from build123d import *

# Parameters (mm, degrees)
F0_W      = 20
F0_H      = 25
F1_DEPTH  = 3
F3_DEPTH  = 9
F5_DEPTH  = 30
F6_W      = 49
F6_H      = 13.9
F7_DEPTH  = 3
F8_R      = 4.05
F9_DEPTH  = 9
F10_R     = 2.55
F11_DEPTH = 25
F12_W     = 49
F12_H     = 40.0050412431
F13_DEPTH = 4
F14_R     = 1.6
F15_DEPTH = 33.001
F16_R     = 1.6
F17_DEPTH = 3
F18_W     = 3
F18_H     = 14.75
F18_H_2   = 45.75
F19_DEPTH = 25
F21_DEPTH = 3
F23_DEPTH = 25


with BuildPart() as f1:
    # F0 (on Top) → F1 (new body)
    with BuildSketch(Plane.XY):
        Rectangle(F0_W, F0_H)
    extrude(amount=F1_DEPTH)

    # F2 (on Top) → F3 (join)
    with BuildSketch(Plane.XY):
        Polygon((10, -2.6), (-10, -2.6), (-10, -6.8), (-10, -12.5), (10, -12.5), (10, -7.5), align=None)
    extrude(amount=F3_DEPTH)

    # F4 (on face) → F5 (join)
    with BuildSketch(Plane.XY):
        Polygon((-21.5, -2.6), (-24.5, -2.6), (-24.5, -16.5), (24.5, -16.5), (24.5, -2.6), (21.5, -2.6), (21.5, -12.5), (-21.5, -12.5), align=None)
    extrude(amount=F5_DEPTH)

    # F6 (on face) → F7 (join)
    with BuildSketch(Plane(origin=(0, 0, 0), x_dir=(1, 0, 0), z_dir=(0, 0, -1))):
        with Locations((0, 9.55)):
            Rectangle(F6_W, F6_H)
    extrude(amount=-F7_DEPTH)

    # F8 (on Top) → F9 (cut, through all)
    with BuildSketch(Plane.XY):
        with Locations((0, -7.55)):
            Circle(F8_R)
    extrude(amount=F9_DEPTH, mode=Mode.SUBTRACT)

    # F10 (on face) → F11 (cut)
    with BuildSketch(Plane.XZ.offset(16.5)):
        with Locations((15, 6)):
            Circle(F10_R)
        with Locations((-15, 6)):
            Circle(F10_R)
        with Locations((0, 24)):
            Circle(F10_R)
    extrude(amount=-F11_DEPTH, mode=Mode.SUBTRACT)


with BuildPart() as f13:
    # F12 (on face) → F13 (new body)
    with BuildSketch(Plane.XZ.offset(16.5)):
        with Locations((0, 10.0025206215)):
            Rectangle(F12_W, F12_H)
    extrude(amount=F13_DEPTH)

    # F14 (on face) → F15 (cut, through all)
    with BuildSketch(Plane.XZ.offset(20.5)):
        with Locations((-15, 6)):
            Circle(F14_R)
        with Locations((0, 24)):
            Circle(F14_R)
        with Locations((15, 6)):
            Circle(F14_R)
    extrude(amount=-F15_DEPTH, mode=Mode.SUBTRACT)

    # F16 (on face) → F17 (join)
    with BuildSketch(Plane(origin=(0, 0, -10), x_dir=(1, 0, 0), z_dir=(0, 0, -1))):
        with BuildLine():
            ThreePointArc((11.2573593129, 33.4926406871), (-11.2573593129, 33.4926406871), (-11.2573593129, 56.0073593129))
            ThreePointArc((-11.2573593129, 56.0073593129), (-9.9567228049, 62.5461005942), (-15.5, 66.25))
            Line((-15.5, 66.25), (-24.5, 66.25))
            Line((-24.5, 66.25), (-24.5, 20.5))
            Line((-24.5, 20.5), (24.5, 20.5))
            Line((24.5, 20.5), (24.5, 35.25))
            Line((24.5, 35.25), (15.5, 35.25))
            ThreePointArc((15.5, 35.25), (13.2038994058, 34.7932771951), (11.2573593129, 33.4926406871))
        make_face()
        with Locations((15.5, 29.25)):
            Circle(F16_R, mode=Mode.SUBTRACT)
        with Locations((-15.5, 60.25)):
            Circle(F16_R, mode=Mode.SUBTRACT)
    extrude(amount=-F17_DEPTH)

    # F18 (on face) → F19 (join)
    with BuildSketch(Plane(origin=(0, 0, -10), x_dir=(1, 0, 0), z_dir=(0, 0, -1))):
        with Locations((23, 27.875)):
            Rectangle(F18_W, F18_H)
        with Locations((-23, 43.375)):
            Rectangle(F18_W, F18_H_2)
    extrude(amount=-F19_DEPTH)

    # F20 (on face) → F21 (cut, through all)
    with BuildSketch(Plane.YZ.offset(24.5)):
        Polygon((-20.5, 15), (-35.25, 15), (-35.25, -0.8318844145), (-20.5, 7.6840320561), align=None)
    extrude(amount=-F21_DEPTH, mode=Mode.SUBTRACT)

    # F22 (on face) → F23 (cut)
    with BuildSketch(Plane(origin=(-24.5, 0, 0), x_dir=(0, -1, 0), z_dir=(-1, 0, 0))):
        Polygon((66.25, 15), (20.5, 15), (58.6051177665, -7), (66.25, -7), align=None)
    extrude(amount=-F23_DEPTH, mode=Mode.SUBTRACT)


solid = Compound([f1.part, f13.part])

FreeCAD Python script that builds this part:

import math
import FreeCAD as App
import Part
import Sketcher
Q = App.Units.Quantity

doc = App.newDocument("Part")
body = doc.addObject("PartDesign::Body", "Body")

# Sketch on XY plane
sketch1 = doc.addObject("Sketcher::SketchObject", "Sketch")
body.addObject(sketch1)
sketch1.AttachmentSupport = (doc.XY_Plane, [""])
sketch1.MapMode = "FlatFace"
sketch1.addGeometry([
    Part.LineSegment(App.Vector(-10, 12, 0), App.Vector(-10, -12, 0)),
    Part.LineSegment(App.Vector(-10, -12, 0), App.Vector(10, -12, 0)),
    Part.LineSegment(App.Vector(10, -12, 0), App.Vector(10, 12, 0)),
    Part.LineSegment(App.Vector(10, 12, 0), App.Vector(-10, 12, 0)),
], False)
sketch1.addConstraint([
    Sketcher.Constraint("Coincident", 0, 2, 1, 1),
    Sketcher.Constraint("Coincident", 1, 2, 2, 1),
    Sketcher.Constraint("Coincident", 2, 2, 3, 1),
    Sketcher.Constraint("Coincident", 3, 2, 0, 1),
    Sketcher.Constraint("Vertical", 0),
    Sketcher.Constraint("Horizontal", 1),
    Sketcher.Constraint("Vertical", 2),
    Sketcher.Constraint("Horizontal", 3),
    Sketcher.Constraint("Symmetric", 0, 2, 2, 2, -1, 1),
    Sketcher.Constraint("DistanceX", 1, 1, 1, 2, 20.0),
    Sketcher.Constraint("DistanceY", 0, 2, 0, 1, 25.0),
])
pad1 = doc.addObject("PartDesign::Pad", "Pad")
body.addObject(pad1)
pad1.Profile = sketch1
pad1.Length = 3

# Sketch on XY plane
sketch2 = doc.addObject("Sketcher::SketchObject", "Sketch001")
body.addObject(sketch2)
sketch2.AttachmentSupport = (doc.XY_Plane, [""])
sketch2.MapMode = "FlatFace"
sketch2.addGeometry([
    Part.LineSegment(App.Vector(10, -3, 0), App.Vector(-10, -3, 0)),
    Part.LineSegment(App.Vector(-10, -3, 0), App.Vector(-10, -12, 0)),
    Part.LineSegment(App.Vector(-10, -12, 0), App.Vector(10, -12, 0)),
    Part.LineSegment(App.Vector(10, -12, 0), App.Vector(10, -3, 0)),
], False)
sketch2.addConstraint([
    Sketcher.Constraint("Coincident", 0, 2, 1, 1),
    Sketcher.Constraint("Coincident", 1, 2, 2, 1),
    Sketcher.Constraint("Coincident", 2, 2, 3, 1),
    Sketcher.Constraint("Coincident", 3, 2, 0, 1),
    Sketcher.Constraint("Horizontal", 0),
    Sketcher.Constraint("Vertical", 1),
    Sketcher.Constraint("Horizontal", 2),
    Sketcher.Constraint("Vertical", 3),
    Sketcher.Constraint("DistanceX", 0, 2, 0, 1, 20.0),
    Sketcher.Constraint("DistanceY", 1, 2, 1, 1, 9.9),
    Sketcher.Constraint("DistanceX", 0, 2, -1, 1, 10.0),
    Sketcher.Constraint("DistanceY", 0, 2, -1, 1, 2.6),
])
pad2 = doc.addObject("PartDesign::Pad", "Pad001")
body.addObject(pad2)
pad2.Profile = sketch2
pad2.Length = 9

# Sketch on XY plane
sketch3 = doc.addObject("Sketcher::SketchObject", "Sketch002")
body.addObject(sketch3)
sketch3.AttachmentSupport = (doc.XY_Plane, [""])
sketch3.MapMode = "FlatFace"
sketch3.addGeometry([
    Part.LineSegment(App.Vector(-21.5, -2.6, 0), App.Vector(-24.5, -2.6, 0)),  # 0
    Part.LineSegment(App.Vector(-24.5, -2.6, 0), App.Vector(-24.5, -16.5, 0)),  # 1
    Part.LineSegment(App.Vector(-24.5, -16.5, 0), App.Vector(24.5, -16.5, 0)),  # 2
    Part.LineSegment(App.Vector(24.5, -16.5, 0), App.Vector(24.5, -2.6, 0)),  # 3
    Part.LineSegment(App.Vector(24.5, -2.6, 0), App.Vector(21.5, -2.6, 0)),  # 4
    Part.LineSegment(App.Vector(21.5, -2.6, 0), App.Vector(21.5, -12.5, 0)),  # 5
    Part.LineSegment(App.Vector(21.5, -12.5, 0), App.Vector(-21.5, -12.5, 0)),  # 6
    Part.LineSegment(App.Vector(-21.5, -12.5, 0), App.Vector(-21.5, -2.6, 0)),  # 7
], False)
sketch3.addConstraint([
    Sketcher.Constraint("Coincident", 0, 2, 1, 1),
    Sketcher.Constraint("Coincident", 1, 2, 2, 1),
    Sketcher.Constraint("Coincident", 2, 2, 3, 1),
    Sketcher.Constraint("Coincident", 3, 2, 4, 1),
    Sketcher.Constraint("Coincident", 4, 2, 5, 1),
    Sketcher.Constraint("Coincident", 5, 2, 6, 1),
    Sketcher.Constraint("Coincident", 6, 2, 7, 1),
    Sketcher.Constraint("Coincident", 7, 2, 0, 1),
    Sketcher.Constraint("Horizontal", 0),
    Sketcher.Constraint("Vertical", 1),
    Sketcher.Constraint("Horizontal", 2),
    Sketcher.Constraint("Vertical", 3),
    Sketcher.Constraint("Horizontal", 4),
    Sketcher.Constraint("Vertical", 5),
    Sketcher.Constraint("Horizontal", 6),
    Sketcher.Constraint("Vertical", 7),
    Sketcher.Constraint("Symmetric", 0, 2, 3, 2, -2),
    Sketcher.Constraint("Equal", 0, 4),
    Sketcher.Constraint("DistanceX", 0, 2, 0, 1, 3.0),
    Sketcher.Constraint("DistanceX", 2, 1, 2, 2, 49.0),
    Sketcher.Constraint("DistanceY", 1, 2, 1, 1, 13.9),
    Sketcher.Constraint("DistanceY", 5, 2, 5, 1, 9.9),
    Sketcher.Constraint("DistanceY", 0, 2, -1, 1, 2.6),
])
pad3 = doc.addObject("PartDesign::Pad", "Pad002")
body.addObject(pad3)
pad3.Profile = sketch3
pad3.Length = 30

# Sketch on XY plane
sketch4 = doc.addObject("Sketcher::SketchObject", "Sketch003")
body.addObject(sketch4)
sketch4.AttachmentSupport = (doc.XY_Plane, [""])
sketch4.MapMode = "FlatFace"
sketch4.addGeometry([
    Part.LineSegment(App.Vector(-24, -16, 0), App.Vector(-24, -3, 0)),
    Part.LineSegment(App.Vector(-24, -3, 0), App.Vector(24, -3, 0)),
    Part.LineSegment(App.Vector(24, -3, 0), App.Vector(24, -16, 0)),
    Part.LineSegment(App.Vector(24, -16, 0), App.Vector(-24, -16, 0)),
], False)
sketch4.addConstraint([
    Sketcher.Constraint("Coincident", 0, 2, 1, 1),
    Sketcher.Constraint("Coincident", 1, 2, 2, 1),
    Sketcher.Constraint("Coincident", 2, 2, 3, 1),
    Sketcher.Constraint("Coincident", 3, 2, 0, 1),
    Sketcher.Constraint("Vertical", 0),
    Sketcher.Constraint("Horizontal", 1),
    Sketcher.Constraint("Vertical", 2),
    Sketcher.Constraint("Horizontal", 3),
    Sketcher.Constraint("DistanceX", 1, 1, 1, 2, 49.0),
    Sketcher.Constraint("DistanceY", 0, 1, 0, 2, 13.9),
    Sketcher.Constraint("DistanceX", 0, 2, -1, 1, 24.5),
    Sketcher.Constraint("DistanceY", 0, 2, -1, 1, 2.6),
])
pad4 = doc.addObject("PartDesign::Pad", "Pad003")
body.addObject(pad4)
pad4.Profile = sketch4
pad4.Length = 3

# Sketch on XY plane
sketch5 = doc.addObject("Sketcher::SketchObject", "Sketch004")
body.addObject(sketch5)
sketch5.AttachmentSupport = (doc.XY_Plane, [""])
sketch5.MapMode = "FlatFace"
sketch5.addGeometry(Part.Circle(App.Vector(0, -7.5, 0), App.Vector(0, 0, 1), 4), False)
sketch5.addConstraint([
    Sketcher.Constraint("PointOnObject", 0, 3, -2),
    Sketcher.Constraint("Diameter", 0, 8.1),
    Sketcher.Constraint("DistanceY", 0, 3, -1, 1, 7.55),
])
pocket1 = doc.addObject("PartDesign::Pocket", "Pocket")
body.addObject(pocket1)
pocket1.Profile = sketch5
pocket1.Type = "ThroughAll"
pocket1.Reversed = True

# Sketch on XZ plane
sketch6 = doc.addObject("Sketcher::SketchObject", "Sketch005")
body.addObject(sketch6)
sketch6.AttachmentSupport = (doc.XZ_Plane, [""])
sketch6.MapMode = "FlatFace"
sketch6.AttachmentOffset = App.Placement(App.Vector(0, 0, 16.5), App.Rotation())
sketch6.addGeometry([
    Part.Circle(App.Vector(15, 6, 0), App.Vector(0, 0, 1), 2.5),
    Part.Circle(App.Vector(-15, 6, 0), App.Vector(0, 0, 1), 2.5),
    Part.Circle(App.Vector(0, 24, 0), App.Vector(0, 0, 1), 2.5),
], False)
sketch6.addConstraint([
    Sketcher.Constraint("Equal", 0, 1),
    Sketcher.Constraint("Equal", 1, 2),
    Sketcher.Constraint("Symmetric", 0, 3, 1, 3, -2),
    Sketcher.Constraint("PointOnObject", 2, 3, -2),
    Sketcher.Constraint("Diameter", 0, 5.1),
    Sketcher.Constraint("DistanceX", -1, 1, 0, 3, 15.0),
    Sketcher.Constraint("DistanceY", -1, 1, 0, 3, 6.0),
    Sketcher.Constraint("DistanceY", -1, 1, 2, 3, 24.0),
])
pocket2 = doc.addObject("PartDesign::Pocket", "Pocket001")
body.addObject(pocket2)
pocket2.Profile = sketch6
pocket2.Length = 25
body2 = doc.addObject("PartDesign::Body", "Body001")

# Sketch on XZ plane
sketch7 = doc.addObject("Sketcher::SketchObject", "Sketch006")
body2.addObject(sketch7)
sketch7.AttachmentSupport = (doc.getObject("XZ_Plane001"), [""])
sketch7.MapMode = "FlatFace"
sketch7.AttachmentOffset = App.Placement(App.Vector(0, 0, 16.5), App.Rotation())
sketch7.addGeometry([
    Part.LineSegment(App.Vector(-24, 30, 0), App.Vector(-24, -10, 0)),
    Part.LineSegment(App.Vector(-24, -10, 0), App.Vector(24, -10, 0)),
    Part.LineSegment(App.Vector(24, -10, 0), App.Vector(24, 30, 0)),
    Part.LineSegment(App.Vector(24, 30, 0), App.Vector(-24, 30, 0)),
], False)
sketch7.addConstraint([
    Sketcher.Constraint("Coincident", 0, 2, 1, 1),
    Sketcher.Constraint("Coincident", 1, 2, 2, 1),
    Sketcher.Constraint("Coincident", 2, 2, 3, 1),
    Sketcher.Constraint("Coincident", 3, 2, 0, 1),
    Sketcher.Constraint("Vertical", 0),
    Sketcher.Constraint("Horizontal", 1),
    Sketcher.Constraint("Vertical", 2),
    Sketcher.Constraint("Horizontal", 3),
    Sketcher.Constraint("DistanceX", 1, 1, 1, 2, 49.0),
    Sketcher.Constraint("DistanceY", 0, 2, -1, 1, 10.0),
    Sketcher.Constraint("DistanceX", 0, 2, -1, 1, 24.5),
    Sketcher.Constraint("DistanceY", 0, 2, 0, 1, 40.005041),
])
pad5 = doc.addObject("PartDesign::Pad", "Pad004")
body2.addObject(pad5)
pad5.Profile = sketch7
pad5.Length = 4

# Sketch on XZ plane
sketch8 = doc.addObject("Sketcher::SketchObject", "Sketch007")
body2.addObject(sketch8)
sketch8.AttachmentSupport = (doc.getObject("XZ_Plane001"), [""])
sketch8.MapMode = "FlatFace"
sketch8.AttachmentOffset = App.Placement(App.Vector(0, 0, 20.5), App.Rotation())
sketch8.addGeometry([
    Part.Circle(App.Vector(-15, 6, 0), App.Vector(0, 0, 1), 1.6),
    Part.Circle(App.Vector(0, 24, 0), App.Vector(0, 0, 1), 1.6),
    Part.Circle(App.Vector(15, 6, 0), App.Vector(0, 0, 1), 1.6),
], False)
sketch8.addConstraint([
    Sketcher.Constraint("Equal", 0, 1),
    Sketcher.Constraint("Equal", 1, 2),
    Sketcher.Constraint("Symmetric", 0, 3, 2, 3, -2),
    Sketcher.Constraint("PointOnObject", 1, 3, -2),
    Sketcher.Constraint("Diameter", 0, 3.2),
    Sketcher.Constraint("DistanceX", 0, 3, -1, 1, 15.0),
    Sketcher.Constraint("DistanceY", -1, 1, 0, 3, 6.0),
    Sketcher.Constraint("DistanceY", -1, 1, 1, 3, 24.0),
])
pocket3 = doc.addObject("PartDesign::Pocket", "Pocket002")
body2.addObject(pocket3)
pocket3.Profile = sketch8
pocket3.Type = "ThroughAll"

# Sketch on XY plane
sketch9 = doc.addObject("Sketcher::SketchObject", "Sketch008")
body2.addObject(sketch9)
sketch9.AttachmentSupport = (doc.getObject("XY_Plane001"), [""])
sketch9.MapMode = "FlatFace"
sketch9.AttachmentOffset = App.Placement(App.Vector(0, 0, -10), App.Rotation())
sketch9.addGeometry([
    Part.ArcOfCircle(Part.Circle(App.Vector(0, -44.8, 0), App.Vector(0, 0, 1), 15.9), math.radians(45), math.radians(225)),  # 0
    Part.ArcOfCircle(Part.Circle(App.Vector(-15.5, -60.2, 0), App.Vector(0, 0, 1), 6), math.radians(-90), math.radians(45)),  # 1
    Part.LineSegment(App.Vector(-15.5, -66.2, 0), App.Vector(-24.5, -66.2, 0)),  # 2
    Part.LineSegment(App.Vector(-24.5, -66.2, 0), App.Vector(-24.5, -20.5, 0)),  # 3
    Part.LineSegment(App.Vector(-24.5, -20.5, 0), App.Vector(24.5, -20.5, 0)),  # 4
    Part.LineSegment(App.Vector(24.5, -20.5, 0), App.Vector(24.5, -35.2, 0)),  # 5
    Part.LineSegment(App.Vector(24.5, -35.2, 0), App.Vector(15.5, -35.2, 0)),  # 6
    Part.ArcOfCircle(Part.Circle(App.Vector(15.5, -29.3, 0), App.Vector(0, 0, 1), 6), math.radians(-135), math.radians(-90)),  # 7
    Part.Circle(App.Vector(15.5, -29.2, 0), App.Vector(0, 0, 1), 1.6),  # 8
    Part.Circle(App.Vector(-15.5, -60.2, 0), App.Vector(0, 0, 1), 1.6),  # 9
], False)
sketch9.addConstraint([
    Sketcher.Constraint("Tangent", 0, 2, 1, 2),
    Sketcher.Constraint("Tangent", 1, 1, 2, 1),
    Sketcher.Constraint("Coincident", 2, 2, 3, 1),
    Sketcher.Constraint("Coincident", 3, 2, 4, 1),
    Sketcher.Constraint("Coincident", 4, 2, 5, 1),
    Sketcher.Constraint("Coincident", 5, 2, 6, 1),
    Sketcher.Constraint("Tangent", 6, 2, 7, 2),
    Sketcher.Constraint("Tangent", 7, 1, 0, 1),
    Sketcher.Constraint("Horizontal", 2),
    Sketcher.Constraint("Vertical", 3),
    Sketcher.Constraint("Horizontal", 4),
    Sketcher.Constraint("Vertical", 5),
    Sketcher.Constraint("Horizontal", 6),
    Sketcher.Constraint("Coincident", 8, 3, 7, 3),
    Sketcher.Constraint("Coincident", 9, 3, 1, 3),
    Sketcher.Constraint("Equal", 1, 7),
    Sketcher.Constraint("Equal", 8, 9),
    Sketcher.Constraint("PointOnObject", 0, 3, -2),
    Sketcher.Constraint("Equal", 2, 6),
    Sketcher.Constraint("Radius", 1, 6.0),
    Sketcher.Constraint("Diameter", 8, 3.2),
    Sketcher.Constraint("DistanceX", 2, 2, 2, 1, 9.0),
    Sketcher.Constraint("DistanceX", 4, 1, 4, 2, 49.0),
    Sketcher.Constraint("DistanceY", 1, 3, 7, 3, 31.0),
    Sketcher.Constraint("DistanceY", 3, 1, 3, 2, 45.75),
    Sketcher.Constraint("DistanceX", 1, 3, -1, 1, 15.5),
    Sketcher.Constraint("DistanceY", 3, 2, -1, 1, 20.5),
])
pad6 = doc.addObject("PartDesign::Pad", "Pad005")
body2.addObject(pad6)
pad6.Profile = sketch9
pad6.Length = 3

# Sketch on XY plane
sketch10 = doc.addObject("Sketcher::SketchObject", "Sketch009")
body2.addObject(sketch10)
sketch10.AttachmentSupport = (doc.getObject("XY_Plane001"), [""])
sketch10.MapMode = "FlatFace"
sketch10.AttachmentOffset = App.Placement(App.Vector(0, 0, -10), App.Rotation())
sketch10.addGeometry([
    Part.LineSegment(App.Vector(21.5, -35.2, 0), App.Vector(21.5, -20.5, 0)),  # 0
    Part.LineSegment(App.Vector(21.5, -20.5, 0), App.Vector(24.5, -20.5, 0)),  # 1
    Part.LineSegment(App.Vector(24.5, -20.5, 0), App.Vector(24.5, -35.2, 0)),  # 2
    Part.LineSegment(App.Vector(24.5, -35.2, 0), App.Vector(21.5, -35.2, 0)),  # 3
    Part.LineSegment(App.Vector(-24.5, -66.2, 0), App.Vector(-24.5, -20.5, 0)),  # 4
    Part.LineSegment(App.Vector(-24.5, -20.5, 0), App.Vector(-21.5, -20.5, 0)),  # 5
    Part.LineSegment(App.Vector(-21.5, -20.5, 0), App.Vector(-21.5, -66.2, 0)),  # 6
    Part.LineSegment(App.Vector(-21.5, -66.2, 0), App.Vector(-24.5, -66.2, 0)),  # 7
], False)
sketch10.addConstraint([
    Sketcher.Constraint("Coincident", 0, 2, 1, 1),
    Sketcher.Constraint("Coincident", 1, 2, 2, 1),
    Sketcher.Constraint("Coincident", 2, 2, 3, 1),
    Sketcher.Constraint("Coincident", 3, 2, 0, 1),
    Sketcher.Constraint("Coincident", 4, 2, 5, 1),
    Sketcher.Constraint("Coincident", 5, 2, 6, 1),
    Sketcher.Constraint("Coincident", 6, 2, 7, 1),
    Sketcher.Constraint("Coincident", 7, 2, 4, 1),
    Sketcher.Constraint("Vertical", 0),
    Sketcher.Constraint("Horizontal", 1),
    Sketcher.Constraint("Vertical", 2),
    Sketcher.Constraint("Horizontal", 3),
    Sketcher.Constraint("Vertical", 4),
    Sketcher.Constraint("Horizontal", 5),
    Sketcher.Constraint("Vertical", 6),
    Sketcher.Constraint("Horizontal", 7),
    Sketcher.Constraint("Symmetric", 1, 2, 4, 2, -2),
    Sketcher.Constraint("Equal", 3, 5),
    Sketcher.Constraint("DistanceX", 1, 1, 1, 2, 3.0),
    Sketcher.Constraint("DistanceX", 4, 2, 0, 2, 46.0),
    Sketcher.Constraint("DistanceY", 6, 2, 3, 2, 31.0),
    Sketcher.Constraint("DistanceY", 0, 1, 0, 2, 14.75),
    Sketcher.Constraint("DistanceY", 0, 2, -1, 1, 20.5),
])
pad7 = doc.addObject("PartDesign::Pad", "Pad006")
body2.addObject(pad7)
pad7.Profile = sketch10
pad7.Length = 25

# Sketch on YZ plane
sketch11 = doc.addObject("Sketcher::SketchObject", "Sketch010")
body2.addObject(sketch11)
sketch11.AttachmentSupport = (doc.getObject("YZ_Plane001"), [""])
sketch11.MapMode = "FlatFace"
sketch11.AttachmentOffset = App.Placement(App.Vector(0, 0, 24.5), App.Rotation())
sketch11.addGeometry([
    Part.LineSegment(App.Vector(-20, 15, 0), App.Vector(-35, 15, 0)),
    Part.LineSegment(App.Vector(-35, 15, 0), App.Vector(-35, -1, 0)),
    Part.LineSegment(App.Vector(-35, -1, 0), App.Vector(-20, 8, 0)),
    Part.LineSegment(App.Vector(-20, 8, 0), App.Vector(-20, 15, 0)),
], False)
sketch11.addConstraint([
    Sketcher.Constraint("Coincident", 0, 2, 1, 1),
    Sketcher.Constraint("Coincident", 1, 2, 2, 1),
    Sketcher.Constraint("Coincident", 2, 2, 3, 1),
    Sketcher.Constraint("Coincident", 3, 2, 0, 1),
    Sketcher.Constraint("Horizontal", 0),
    Sketcher.Constraint("Vertical", 1),
    Sketcher.Constraint("Vertical", 3),
    Sketcher.Constraint("Angle", 2, Q("30 deg")),
    Sketcher.Constraint("DistanceY", -1, 1, 0, 2, 15.0),
    Sketcher.Constraint("DistanceX", 0, 2, 0, 1, 14.75),
    Sketcher.Constraint("DistanceX", 2, 2, -1, 1, 20.5),
    Sketcher.Constraint("DistanceY", 1, 2, 1, 1, 15.831884),
])
pocket4 = doc.addObject("PartDesign::Pocket", "Pocket003")
body2.addObject(pocket4)
pocket4.Profile = sketch11
pocket4.Length = 3

# Sketch on YZ plane
sketch12 = doc.addObject("Sketcher::SketchObject", "Sketch011")
body2.addObject(sketch12)
sketch12.AttachmentSupport = (doc.getObject("YZ_Plane001"), [""])
sketch12.MapMode = "FlatFace"
sketch12.AttachmentOffset = App.Placement(App.Vector(0, 0, -24.5), App.Rotation())
sketch12.addGeometry([
    Part.LineSegment(App.Vector(-66, 15, 0), App.Vector(-20, 15, 0)),
    Part.LineSegment(App.Vector(-20, 15, 0), App.Vector(-59, -7, 0)),
    Part.LineSegment(App.Vector(-59, -7, 0), App.Vector(-66, -7, 0)),
    Part.LineSegment(App.Vector(-66, -7, 0), App.Vector(-66, 15, 0)),
], False)
sketch12.addConstraint([
    Sketcher.Constraint("Coincident", 0, 2, 1, 1),
    Sketcher.Constraint("Coincident", 1, 2, 2, 1),
    Sketcher.Constraint("Coincident", 2, 2, 3, 1),
    Sketcher.Constraint("Coincident", 3, 2, 0, 1),
    Sketcher.Constraint("Horizontal", 0),
    Sketcher.Constraint("Horizontal", 2),
    Sketcher.Constraint("Vertical", 3),
    Sketcher.Constraint("DistanceY", 3, 1, 3, 2, 22.0),
    Sketcher.Constraint("Angle", 1, Q("-150 deg")),
    Sketcher.Constraint("DistanceY", -1, 1, 0, 2, 15.0),
    Sketcher.Constraint("DistanceX", 0, 1, 0, 2, 45.75),
    Sketcher.Constraint("DistanceX", 0, 2, -1, 1, 20.5),
])
pocket5 = doc.addObject("PartDesign::Pocket", "Pocket004")
body2.addObject(pocket5)
pocket5.Profile = sketch12
pocket5.Length = 25
pocket5.Reversed = True

doc.recompute()
